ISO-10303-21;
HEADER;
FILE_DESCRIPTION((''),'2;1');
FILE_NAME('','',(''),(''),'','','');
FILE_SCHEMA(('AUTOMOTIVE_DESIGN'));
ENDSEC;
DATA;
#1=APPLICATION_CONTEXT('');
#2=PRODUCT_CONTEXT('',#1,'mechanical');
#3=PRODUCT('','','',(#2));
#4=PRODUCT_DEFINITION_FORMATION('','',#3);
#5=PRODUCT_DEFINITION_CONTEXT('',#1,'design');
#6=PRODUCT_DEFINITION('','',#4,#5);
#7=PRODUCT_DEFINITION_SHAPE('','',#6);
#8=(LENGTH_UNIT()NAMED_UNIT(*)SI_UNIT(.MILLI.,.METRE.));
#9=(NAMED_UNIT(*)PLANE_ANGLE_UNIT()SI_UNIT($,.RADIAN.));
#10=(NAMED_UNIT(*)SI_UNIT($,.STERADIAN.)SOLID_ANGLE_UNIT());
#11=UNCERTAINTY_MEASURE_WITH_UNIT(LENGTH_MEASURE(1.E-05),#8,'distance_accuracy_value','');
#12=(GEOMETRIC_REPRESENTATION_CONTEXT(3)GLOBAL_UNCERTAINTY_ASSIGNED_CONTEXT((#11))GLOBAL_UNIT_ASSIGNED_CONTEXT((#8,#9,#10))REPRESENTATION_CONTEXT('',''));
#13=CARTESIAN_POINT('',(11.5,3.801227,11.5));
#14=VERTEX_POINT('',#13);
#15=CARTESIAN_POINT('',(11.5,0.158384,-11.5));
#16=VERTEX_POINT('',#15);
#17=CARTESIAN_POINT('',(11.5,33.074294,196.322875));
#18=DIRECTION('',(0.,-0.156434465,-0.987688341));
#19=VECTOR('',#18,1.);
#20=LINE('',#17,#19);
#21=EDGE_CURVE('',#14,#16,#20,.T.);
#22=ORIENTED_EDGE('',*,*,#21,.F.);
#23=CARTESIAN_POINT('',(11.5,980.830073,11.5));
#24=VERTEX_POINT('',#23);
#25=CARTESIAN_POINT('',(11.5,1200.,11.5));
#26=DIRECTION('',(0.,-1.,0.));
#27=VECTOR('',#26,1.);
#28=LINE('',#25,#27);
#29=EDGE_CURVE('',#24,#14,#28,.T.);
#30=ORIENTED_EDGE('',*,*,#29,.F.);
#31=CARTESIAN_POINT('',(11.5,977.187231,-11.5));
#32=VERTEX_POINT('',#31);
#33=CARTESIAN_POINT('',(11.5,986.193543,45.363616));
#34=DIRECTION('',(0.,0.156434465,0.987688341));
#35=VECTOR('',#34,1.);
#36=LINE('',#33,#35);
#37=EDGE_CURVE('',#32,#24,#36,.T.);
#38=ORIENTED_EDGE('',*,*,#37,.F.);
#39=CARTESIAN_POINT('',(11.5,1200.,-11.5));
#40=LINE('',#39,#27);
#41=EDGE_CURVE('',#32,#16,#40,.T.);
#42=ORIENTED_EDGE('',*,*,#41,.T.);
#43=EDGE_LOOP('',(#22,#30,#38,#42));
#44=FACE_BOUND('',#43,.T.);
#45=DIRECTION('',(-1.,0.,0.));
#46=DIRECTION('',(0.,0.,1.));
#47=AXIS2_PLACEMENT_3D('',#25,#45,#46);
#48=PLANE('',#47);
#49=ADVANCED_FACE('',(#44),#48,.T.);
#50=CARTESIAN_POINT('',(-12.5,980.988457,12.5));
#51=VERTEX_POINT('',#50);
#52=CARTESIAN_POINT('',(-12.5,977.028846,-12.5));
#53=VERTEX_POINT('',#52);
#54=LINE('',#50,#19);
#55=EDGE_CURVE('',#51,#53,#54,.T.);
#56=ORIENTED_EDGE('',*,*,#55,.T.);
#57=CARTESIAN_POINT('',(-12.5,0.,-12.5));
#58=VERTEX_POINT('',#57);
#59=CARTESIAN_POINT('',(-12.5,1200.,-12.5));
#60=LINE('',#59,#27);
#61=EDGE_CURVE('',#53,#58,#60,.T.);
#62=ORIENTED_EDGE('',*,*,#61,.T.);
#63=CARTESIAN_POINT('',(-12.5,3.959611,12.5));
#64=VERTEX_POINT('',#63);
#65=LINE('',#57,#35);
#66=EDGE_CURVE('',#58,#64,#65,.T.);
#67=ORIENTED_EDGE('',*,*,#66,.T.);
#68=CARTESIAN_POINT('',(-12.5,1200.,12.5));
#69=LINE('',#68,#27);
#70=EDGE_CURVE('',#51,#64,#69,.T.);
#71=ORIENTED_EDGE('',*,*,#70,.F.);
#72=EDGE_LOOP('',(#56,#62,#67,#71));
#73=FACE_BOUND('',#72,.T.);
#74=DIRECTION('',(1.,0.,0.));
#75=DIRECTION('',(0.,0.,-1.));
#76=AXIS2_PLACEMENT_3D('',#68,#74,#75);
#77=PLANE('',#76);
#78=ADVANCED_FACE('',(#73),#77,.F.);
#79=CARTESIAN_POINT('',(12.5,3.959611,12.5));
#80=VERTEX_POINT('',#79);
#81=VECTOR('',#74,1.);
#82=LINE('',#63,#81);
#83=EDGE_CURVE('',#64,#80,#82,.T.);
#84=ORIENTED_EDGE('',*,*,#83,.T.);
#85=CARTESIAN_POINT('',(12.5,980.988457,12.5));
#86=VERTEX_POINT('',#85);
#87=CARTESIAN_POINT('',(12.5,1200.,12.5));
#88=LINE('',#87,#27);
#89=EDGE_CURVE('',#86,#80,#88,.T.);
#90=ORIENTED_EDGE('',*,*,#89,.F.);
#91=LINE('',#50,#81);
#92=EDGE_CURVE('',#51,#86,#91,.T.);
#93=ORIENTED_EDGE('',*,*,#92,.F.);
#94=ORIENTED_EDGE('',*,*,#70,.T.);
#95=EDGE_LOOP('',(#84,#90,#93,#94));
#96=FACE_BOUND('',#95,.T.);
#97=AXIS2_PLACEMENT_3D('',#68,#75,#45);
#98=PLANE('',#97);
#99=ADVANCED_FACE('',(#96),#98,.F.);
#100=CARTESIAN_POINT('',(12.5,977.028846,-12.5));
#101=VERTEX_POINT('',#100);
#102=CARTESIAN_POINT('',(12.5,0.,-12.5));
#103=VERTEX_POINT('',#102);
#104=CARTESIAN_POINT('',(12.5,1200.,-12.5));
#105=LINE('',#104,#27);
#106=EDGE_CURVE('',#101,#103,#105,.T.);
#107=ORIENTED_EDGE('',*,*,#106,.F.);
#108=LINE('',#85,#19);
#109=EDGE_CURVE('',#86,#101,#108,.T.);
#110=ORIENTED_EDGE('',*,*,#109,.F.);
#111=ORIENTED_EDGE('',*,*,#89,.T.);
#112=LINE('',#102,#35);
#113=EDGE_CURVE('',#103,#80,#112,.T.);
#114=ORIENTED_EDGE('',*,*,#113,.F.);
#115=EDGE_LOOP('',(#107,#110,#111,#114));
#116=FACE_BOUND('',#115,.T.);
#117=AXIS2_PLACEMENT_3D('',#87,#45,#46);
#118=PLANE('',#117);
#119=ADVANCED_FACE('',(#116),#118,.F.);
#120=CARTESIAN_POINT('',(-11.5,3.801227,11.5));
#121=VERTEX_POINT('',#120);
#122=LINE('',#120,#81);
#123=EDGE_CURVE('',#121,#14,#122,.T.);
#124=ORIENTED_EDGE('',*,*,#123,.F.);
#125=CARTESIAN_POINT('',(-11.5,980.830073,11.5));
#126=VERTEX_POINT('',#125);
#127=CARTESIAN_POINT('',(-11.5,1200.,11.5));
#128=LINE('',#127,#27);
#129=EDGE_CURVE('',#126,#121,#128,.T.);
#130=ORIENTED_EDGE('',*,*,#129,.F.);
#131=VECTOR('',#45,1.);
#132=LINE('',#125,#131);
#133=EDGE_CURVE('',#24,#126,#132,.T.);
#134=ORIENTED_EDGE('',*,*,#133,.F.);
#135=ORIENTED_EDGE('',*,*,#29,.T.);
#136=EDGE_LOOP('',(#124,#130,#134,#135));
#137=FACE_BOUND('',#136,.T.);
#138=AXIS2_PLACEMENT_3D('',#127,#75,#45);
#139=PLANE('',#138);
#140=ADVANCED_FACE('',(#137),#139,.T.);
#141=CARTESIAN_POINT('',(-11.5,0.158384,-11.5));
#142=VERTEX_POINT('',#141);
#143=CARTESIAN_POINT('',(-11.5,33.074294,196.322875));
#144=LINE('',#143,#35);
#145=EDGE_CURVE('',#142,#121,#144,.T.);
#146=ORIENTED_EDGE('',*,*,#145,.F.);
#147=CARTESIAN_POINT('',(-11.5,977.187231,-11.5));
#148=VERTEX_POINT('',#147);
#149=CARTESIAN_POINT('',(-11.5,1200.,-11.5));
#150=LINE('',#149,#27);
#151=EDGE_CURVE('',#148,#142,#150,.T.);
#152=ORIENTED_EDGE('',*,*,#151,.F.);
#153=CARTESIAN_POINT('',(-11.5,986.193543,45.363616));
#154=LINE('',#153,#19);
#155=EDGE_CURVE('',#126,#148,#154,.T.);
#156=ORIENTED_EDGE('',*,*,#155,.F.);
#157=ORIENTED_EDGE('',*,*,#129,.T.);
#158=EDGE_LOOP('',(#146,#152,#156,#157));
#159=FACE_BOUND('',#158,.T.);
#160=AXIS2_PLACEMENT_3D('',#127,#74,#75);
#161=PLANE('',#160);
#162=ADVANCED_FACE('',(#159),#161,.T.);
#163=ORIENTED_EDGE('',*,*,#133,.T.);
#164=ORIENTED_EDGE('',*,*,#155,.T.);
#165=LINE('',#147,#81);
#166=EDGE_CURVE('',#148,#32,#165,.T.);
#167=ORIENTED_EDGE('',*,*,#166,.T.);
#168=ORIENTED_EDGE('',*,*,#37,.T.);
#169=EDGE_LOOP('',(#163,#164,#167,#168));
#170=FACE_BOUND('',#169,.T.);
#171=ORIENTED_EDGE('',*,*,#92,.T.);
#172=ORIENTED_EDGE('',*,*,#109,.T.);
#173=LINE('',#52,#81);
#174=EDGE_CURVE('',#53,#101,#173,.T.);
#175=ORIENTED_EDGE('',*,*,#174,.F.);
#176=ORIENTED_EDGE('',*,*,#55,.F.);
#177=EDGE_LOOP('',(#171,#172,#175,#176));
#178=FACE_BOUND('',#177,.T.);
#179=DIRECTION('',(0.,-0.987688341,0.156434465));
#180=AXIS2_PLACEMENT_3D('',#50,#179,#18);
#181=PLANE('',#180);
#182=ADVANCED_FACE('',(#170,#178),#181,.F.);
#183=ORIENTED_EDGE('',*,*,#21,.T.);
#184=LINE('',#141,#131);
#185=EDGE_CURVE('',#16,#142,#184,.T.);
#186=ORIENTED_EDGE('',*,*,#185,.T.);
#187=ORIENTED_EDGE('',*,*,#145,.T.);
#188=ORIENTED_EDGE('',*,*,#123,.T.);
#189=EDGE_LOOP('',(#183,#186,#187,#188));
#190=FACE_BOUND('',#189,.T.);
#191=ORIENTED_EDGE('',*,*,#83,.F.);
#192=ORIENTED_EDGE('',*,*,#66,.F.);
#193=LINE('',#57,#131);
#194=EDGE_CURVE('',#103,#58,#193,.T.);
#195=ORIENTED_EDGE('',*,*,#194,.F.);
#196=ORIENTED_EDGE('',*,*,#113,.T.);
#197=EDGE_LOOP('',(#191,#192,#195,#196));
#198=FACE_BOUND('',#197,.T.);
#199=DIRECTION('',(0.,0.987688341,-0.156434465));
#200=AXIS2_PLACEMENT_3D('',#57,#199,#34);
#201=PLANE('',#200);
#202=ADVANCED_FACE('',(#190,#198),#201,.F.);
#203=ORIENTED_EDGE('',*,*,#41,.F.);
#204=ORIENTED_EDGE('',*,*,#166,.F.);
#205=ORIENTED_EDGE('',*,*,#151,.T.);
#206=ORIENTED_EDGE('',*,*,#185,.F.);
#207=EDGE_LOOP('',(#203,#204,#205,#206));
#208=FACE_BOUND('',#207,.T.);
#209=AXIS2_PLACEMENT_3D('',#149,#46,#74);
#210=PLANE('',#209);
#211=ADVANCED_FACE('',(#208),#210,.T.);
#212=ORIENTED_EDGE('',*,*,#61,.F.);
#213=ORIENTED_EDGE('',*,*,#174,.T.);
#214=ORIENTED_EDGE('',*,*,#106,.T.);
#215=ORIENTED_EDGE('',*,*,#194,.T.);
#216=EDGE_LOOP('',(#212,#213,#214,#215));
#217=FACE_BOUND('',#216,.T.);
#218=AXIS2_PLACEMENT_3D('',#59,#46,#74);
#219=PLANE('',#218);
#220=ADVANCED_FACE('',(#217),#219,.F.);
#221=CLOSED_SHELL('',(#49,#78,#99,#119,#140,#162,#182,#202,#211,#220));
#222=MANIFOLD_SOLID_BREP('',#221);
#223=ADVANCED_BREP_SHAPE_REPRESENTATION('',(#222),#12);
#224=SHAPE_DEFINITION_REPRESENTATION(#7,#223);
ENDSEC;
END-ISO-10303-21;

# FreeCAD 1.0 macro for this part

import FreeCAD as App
import Part
import Sketcher
Q = App.Units.Quantity


def add_polygon(sketch, points):
    """Adds a closed chain of lines whose ends are joined by coincident constraints."""
    first, n = sketch.GeometryCount, len(points)
    for a, b in zip(points, points[1:] + points[:1]):
        sketch.addGeometry(Part.LineSegment(App.Vector(*a, 0), App.Vector(*b, 0)), False)
    for i in range(n):
        sketch.addConstraint(Sketcher.Constraint("Coincident", first + i, 2, first + (i + 1) % n, 1))

doc = App.newDocument("Part")
body = doc.addObject("PartDesign::Body", "Body")

# Sketch on XZ plane
sketch1 = body.newObject("Sketcher::SketchObject", "Sketch")
sketch1.AttachmentSupport = (doc.getObject("XZ_Plane"), [""])
sketch1.MapMode = "FlatFace"
add_polygon(sketch1, [(-12, -12), (-12, 12), (12, 12), (12, -12)])  # lines 0-3
add_polygon(sketch1, [(12, 12), (-12, 12), (-12, -12), (12, -12)])  # lines 4-7
sketch1.addConstraint([
    Sketcher.Constraint("Vertical", 0),
    Sketcher.Constraint("Horizontal", 1),
    Sketcher.Constraint("Vertical", 2),
    Sketcher.Constraint("Horizontal", 3),
    Sketcher.Constraint("Horizontal", 4),
    Sketcher.Constraint("Vertical", 5),
    Sketcher.Constraint("Horizontal", 6),
    Sketcher.Constraint("Vertical", 7),
    Sketcher.Constraint("Symmetric", 0, 2, 2, 2, -1, 1),
    Sketcher.Constraint("Symmetric", 4, 2, 6, 2, -1, 1),
    Sketcher.Constraint("Equal", 3, 0),
    Sketcher.Constraint("Equal", 6, 5),
    Sketcher.Constraint("DistanceX", 1, 1, 1, 2, Q("25 mm")),
    Sketcher.Constraint("DistanceX", 4, 2, 4, 1, Q("23 mm")),
])
pad1 = body.newObject("PartDesign::Pad", "Pad")
pad1.Profile = sketch1
pad1.Length = 1200
pad1.Reversed = True

# Sketch on YZ plane
sketch2 = body.newObject("Sketcher::SketchObject", "Sketch001")
sketch2.AttachmentSupport = (doc.getObject("YZ_Plane"), [""])
sketch2.MapMode = "FlatFace"
sketch2.AttachmentOffset = App.Placement(App.Vector(0, 0, 12.5), App.Rotation())
add_polygon(sketch2, [(0, -12.5), (4, 12.5), (0, 12.5)])  # lines 0-2
add_polygon(sketch2, [(1200, -12.5), (1200, 12.5), (981, 12.5), (977, -12.5)])  # lines 3-6
sketch2.addConstraint([
    Sketcher.Constraint("Horizontal", 1),
    Sketcher.Constraint("Vertical", 2),
    Sketcher.Constraint("Vertical", 3),
    Sketcher.Constraint("Horizontal", 4),
    Sketcher.Constraint("Horizontal", 6),
    Sketcher.Constraint("Symmetric", 1, 2, 2, 2, -1, 1),
    Sketcher.Constraint("Parallel", 0, 5),
    Sketcher.Constraint("Horizontal", 1, 2, 3, 2),
    Sketcher.Constraint("Horizontal", 2, 2, 5, 2),
    Sketcher.Constraint("DistanceY", 2, 2, 2, 1, Q("25 mm")),
    Sketcher.Constraint("Angle", 0, Q("81 deg")),
    Sketcher.Constraint("DistanceX", -1, 1, 3, 2, Q("1200 mm")),
    Sketcher.Constraint("DistanceX", 4, 2, 4, 1, Q("219.011543 mm")),
])
pocket1 = body.newObject("PartDesign::Pocket", "Pocket")
pocket1.Profile = sketch2
pocket1.Type = "ThroughAll"

doc.recompute()
